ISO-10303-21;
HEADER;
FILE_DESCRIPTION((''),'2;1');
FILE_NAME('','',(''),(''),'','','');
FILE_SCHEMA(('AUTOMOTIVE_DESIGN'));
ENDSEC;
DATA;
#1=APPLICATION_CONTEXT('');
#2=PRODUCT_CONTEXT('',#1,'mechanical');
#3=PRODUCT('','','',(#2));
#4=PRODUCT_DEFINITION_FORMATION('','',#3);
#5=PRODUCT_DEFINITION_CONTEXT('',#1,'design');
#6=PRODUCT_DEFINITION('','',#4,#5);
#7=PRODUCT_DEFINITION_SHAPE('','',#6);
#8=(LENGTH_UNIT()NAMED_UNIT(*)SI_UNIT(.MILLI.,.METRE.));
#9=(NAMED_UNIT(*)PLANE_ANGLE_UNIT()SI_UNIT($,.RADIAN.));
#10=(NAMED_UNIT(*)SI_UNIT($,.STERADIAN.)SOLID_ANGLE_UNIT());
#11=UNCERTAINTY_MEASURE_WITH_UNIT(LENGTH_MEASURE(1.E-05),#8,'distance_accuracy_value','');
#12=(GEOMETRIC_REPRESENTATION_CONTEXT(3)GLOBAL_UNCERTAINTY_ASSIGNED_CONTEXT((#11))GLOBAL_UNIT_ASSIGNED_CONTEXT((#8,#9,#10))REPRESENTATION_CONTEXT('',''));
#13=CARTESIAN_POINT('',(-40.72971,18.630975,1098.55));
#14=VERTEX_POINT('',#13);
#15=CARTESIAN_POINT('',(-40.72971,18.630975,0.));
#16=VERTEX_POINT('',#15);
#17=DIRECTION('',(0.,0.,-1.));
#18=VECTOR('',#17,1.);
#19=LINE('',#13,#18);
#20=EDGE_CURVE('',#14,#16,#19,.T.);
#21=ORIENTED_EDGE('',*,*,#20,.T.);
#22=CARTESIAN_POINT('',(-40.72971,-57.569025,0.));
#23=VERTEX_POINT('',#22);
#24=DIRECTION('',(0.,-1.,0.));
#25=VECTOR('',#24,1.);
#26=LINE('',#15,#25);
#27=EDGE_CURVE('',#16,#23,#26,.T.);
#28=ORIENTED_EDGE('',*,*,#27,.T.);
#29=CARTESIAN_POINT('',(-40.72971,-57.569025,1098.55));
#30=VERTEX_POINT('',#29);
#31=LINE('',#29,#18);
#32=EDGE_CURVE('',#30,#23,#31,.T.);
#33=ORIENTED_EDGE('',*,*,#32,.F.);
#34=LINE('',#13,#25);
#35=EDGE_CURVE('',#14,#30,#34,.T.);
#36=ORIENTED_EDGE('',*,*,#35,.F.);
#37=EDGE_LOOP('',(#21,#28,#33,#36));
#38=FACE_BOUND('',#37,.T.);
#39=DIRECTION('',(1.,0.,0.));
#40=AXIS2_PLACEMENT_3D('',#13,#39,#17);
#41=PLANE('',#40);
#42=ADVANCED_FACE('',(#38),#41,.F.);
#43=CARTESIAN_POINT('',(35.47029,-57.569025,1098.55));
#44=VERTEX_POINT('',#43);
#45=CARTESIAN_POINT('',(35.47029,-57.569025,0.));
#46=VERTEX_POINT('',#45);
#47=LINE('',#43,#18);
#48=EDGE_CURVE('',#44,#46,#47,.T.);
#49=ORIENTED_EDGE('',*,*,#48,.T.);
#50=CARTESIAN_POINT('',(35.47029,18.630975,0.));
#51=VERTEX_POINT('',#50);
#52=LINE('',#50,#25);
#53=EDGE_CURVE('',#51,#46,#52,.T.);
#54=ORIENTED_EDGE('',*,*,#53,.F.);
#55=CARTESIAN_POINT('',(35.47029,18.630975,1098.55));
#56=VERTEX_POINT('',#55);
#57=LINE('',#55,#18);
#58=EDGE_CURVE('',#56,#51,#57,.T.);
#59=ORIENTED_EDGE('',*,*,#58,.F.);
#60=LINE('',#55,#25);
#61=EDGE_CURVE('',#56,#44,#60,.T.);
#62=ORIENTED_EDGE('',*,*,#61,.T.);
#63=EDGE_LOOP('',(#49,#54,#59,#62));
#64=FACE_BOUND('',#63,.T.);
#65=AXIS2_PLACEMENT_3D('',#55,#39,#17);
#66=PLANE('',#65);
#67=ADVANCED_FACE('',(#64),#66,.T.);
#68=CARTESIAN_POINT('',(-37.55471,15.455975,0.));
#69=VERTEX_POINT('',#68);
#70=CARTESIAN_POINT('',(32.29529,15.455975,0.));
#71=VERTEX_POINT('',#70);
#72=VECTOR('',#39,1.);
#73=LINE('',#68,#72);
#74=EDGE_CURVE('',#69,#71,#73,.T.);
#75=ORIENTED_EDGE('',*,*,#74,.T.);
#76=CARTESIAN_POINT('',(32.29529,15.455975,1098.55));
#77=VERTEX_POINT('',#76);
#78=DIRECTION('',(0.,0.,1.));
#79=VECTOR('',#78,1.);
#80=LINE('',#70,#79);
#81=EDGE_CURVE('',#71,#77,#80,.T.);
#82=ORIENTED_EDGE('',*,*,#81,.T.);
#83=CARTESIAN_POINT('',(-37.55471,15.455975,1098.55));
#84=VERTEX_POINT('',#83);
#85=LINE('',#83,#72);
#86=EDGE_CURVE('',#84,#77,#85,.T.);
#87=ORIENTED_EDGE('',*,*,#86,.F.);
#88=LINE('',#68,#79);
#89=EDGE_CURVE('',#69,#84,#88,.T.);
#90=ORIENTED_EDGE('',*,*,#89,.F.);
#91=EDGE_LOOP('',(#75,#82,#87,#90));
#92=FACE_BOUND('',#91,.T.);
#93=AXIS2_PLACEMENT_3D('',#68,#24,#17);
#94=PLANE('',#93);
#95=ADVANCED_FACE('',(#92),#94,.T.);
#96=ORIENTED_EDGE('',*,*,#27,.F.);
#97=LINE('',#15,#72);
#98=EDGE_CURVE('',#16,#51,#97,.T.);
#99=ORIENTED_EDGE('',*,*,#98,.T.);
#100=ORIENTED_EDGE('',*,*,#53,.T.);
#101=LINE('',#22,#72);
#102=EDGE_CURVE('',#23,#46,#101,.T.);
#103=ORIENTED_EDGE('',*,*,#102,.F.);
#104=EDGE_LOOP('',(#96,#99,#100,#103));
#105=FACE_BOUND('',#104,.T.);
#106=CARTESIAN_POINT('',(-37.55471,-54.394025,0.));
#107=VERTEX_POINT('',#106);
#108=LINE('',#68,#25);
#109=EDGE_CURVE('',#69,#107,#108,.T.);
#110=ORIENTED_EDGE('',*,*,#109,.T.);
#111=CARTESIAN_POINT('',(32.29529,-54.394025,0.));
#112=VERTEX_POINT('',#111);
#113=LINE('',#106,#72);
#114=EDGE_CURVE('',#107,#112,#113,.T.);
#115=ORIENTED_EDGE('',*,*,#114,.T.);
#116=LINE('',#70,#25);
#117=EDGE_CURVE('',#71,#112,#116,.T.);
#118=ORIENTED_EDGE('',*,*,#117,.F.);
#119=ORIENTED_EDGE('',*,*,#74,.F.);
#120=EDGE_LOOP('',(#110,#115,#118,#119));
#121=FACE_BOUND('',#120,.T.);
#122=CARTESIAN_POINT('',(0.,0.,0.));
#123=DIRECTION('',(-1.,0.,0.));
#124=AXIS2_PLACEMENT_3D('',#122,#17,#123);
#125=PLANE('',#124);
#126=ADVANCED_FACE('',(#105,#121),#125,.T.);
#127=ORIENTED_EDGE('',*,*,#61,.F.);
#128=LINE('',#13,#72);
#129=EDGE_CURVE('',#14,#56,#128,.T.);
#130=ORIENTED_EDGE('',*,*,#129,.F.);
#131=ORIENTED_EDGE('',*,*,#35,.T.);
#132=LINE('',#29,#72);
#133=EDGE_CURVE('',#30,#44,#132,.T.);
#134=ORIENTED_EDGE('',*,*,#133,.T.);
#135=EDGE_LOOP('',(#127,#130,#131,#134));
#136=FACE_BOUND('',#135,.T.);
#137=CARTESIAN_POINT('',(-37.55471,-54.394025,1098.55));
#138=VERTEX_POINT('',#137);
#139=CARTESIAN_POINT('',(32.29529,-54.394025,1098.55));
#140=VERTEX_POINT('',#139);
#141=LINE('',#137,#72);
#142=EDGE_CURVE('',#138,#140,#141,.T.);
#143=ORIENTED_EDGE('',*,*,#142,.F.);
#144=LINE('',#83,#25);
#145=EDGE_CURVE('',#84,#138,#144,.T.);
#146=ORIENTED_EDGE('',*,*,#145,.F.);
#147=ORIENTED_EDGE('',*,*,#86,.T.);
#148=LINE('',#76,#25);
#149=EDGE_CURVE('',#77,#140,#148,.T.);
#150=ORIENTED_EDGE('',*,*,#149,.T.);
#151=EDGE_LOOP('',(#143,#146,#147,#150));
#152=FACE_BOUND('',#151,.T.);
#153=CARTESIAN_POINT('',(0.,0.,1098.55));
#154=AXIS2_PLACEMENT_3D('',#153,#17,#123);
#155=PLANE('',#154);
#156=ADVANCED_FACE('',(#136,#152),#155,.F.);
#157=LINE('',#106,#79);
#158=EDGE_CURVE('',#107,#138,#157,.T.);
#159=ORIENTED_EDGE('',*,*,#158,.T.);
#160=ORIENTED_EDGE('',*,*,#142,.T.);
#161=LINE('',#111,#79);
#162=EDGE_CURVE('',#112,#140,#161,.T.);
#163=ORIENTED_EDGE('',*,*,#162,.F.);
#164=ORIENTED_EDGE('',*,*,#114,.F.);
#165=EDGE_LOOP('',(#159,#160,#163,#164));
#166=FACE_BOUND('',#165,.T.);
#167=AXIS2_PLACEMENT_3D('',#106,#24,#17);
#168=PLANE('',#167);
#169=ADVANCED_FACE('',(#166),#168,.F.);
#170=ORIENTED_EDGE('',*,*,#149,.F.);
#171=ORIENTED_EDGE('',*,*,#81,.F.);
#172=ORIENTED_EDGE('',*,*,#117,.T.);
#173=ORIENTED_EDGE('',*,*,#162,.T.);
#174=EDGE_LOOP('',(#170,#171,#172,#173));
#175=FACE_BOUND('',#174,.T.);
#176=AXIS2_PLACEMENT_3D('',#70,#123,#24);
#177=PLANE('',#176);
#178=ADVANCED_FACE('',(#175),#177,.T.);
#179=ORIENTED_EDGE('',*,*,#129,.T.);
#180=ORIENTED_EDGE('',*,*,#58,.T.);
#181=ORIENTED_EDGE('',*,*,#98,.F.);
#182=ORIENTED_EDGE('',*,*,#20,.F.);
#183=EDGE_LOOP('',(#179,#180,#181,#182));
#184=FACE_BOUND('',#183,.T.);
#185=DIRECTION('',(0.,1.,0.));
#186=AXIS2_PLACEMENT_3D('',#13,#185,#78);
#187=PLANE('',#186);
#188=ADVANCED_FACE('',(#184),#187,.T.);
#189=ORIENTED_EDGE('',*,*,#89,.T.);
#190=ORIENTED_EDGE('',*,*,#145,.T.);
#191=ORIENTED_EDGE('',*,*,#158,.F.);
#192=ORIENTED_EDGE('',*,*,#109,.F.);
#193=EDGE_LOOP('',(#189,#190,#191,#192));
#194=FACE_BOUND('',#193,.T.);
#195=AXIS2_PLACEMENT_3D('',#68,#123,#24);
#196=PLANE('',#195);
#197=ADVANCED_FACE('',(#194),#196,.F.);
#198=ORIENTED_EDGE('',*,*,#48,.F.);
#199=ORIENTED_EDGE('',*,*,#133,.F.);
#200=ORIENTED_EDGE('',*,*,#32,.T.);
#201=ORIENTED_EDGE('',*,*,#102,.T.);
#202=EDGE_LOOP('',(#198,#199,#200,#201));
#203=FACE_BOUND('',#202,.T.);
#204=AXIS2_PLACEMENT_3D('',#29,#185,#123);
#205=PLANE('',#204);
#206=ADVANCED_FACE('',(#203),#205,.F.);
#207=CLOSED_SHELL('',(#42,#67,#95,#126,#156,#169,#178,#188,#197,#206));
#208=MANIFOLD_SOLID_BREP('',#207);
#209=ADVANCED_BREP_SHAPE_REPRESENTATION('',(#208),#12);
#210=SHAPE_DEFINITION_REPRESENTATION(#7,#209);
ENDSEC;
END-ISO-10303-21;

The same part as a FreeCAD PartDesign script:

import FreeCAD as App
import Part
import Sketcher

V = App.Vector
Q = App.Units.Quantity

doc = App.newDocument("Part")
body = doc.addObject("PartDesign::Body", "Body")

sketch1 = body.newObject("Sketcher::SketchObject", "Sketch")
sketch1.AttachmentSupport = (doc.getObject("XY_Plane"), [""])
sketch1.MapMode = "FlatFace"
sketch1.addGeometry(Part.LineSegment(V(-41, 19, 0), V(-41, -58, 0)), False)
sketch1.addGeometry(Part.LineSegment(V(-41, -58, 0), V(35, -58, 0)), False)
sketch1.addGeometry(Part.LineSegment(V(35, -58, 0), V(35, 19, 0)), False)
sketch1.addGeometry(Part.LineSegment(V(35, 19, 0), V(-41, 19, 0)), False)
sketch1.addConstraint(Sketcher.Constraint("Coincident", 0, 2, 1, 1))
sketch1.addConstraint(Sketcher.Constraint("Coincident", 1, 2, 2, 1))
sketch1.addConstraint(Sketcher.Constraint("Coincident", 2, 2, 3, 1))
sketch1.addConstraint(Sketcher.Constraint("Coincident", 3, 2, 0, 1))
sketch1.addConstraint(Sketcher.Constraint("Vertical", 0))
sketch1.addConstraint(Sketcher.Constraint("Horizontal", 1))
sketch1.addConstraint(Sketcher.Constraint("Vertical", 2))
sketch1.addConstraint(Sketcher.Constraint("Horizontal", 3))
sketch1.addConstraint(Sketcher.Constraint("Equal", 3, 0))
sketch1.addConstraint(Sketcher.Constraint("DistanceX", 1, 1, 1, 2, Q("3 in")))
sketch1.addConstraint(Sketcher.Constraint("DistanceX", 0, 2, -1, 1, Q("40.72971 mm")))
sketch1.addConstraint(Sketcher.Constraint("DistanceY", 0, 2, -1, 1, Q("57.569025 mm")))
pad1 = body.newObject("PartDesign::Pad", "Pad")
pad1.Profile = sketch1
pad1.Length = Q("43.25 in")

sketch2 = body.newObject("Sketcher::SketchObject", "Sketch001")
sketch2.AttachmentSupport = (doc.getObject("XY_Plane"), [""])
sketch2.MapMode = "FlatFace"
sketch2.AttachmentOffset = App.Placement(V(0, 0, 43.25 * 25.4), App.Rotation())
sketch2.addGeometry(Part.LineSegment(V(-38, 15, 0), V(-38, -54, 0)), False)
sketch2.addGeometry(Part.LineSegment(V(-38, -54, 0), V(32, -54, 0)), False)
sketch2.addGeometry(Part.LineSegment(V(32, -54, 0), V(32, 15, 0)), False)
sketch2.addGeometry(Part.LineSegment(V(32, 15, 0), V(-38, 15, 0)), False)
sketch2.addConstraint(Sketcher.Constraint("Coincident", 0, 2, 1, 1))
sketch2.addConstraint(Sketcher.Constraint("Coincident", 1, 2, 2, 1))
sketch2.addConstraint(Sketcher.Constraint("Coincident", 2, 2, 3, 1))
sketch2.addConstraint(Sketcher.Constraint("Coincident", 3, 2, 0, 1))
sketch2.addConstraint(Sketcher.Constraint("Vertical", 0))
sketch2.addConstraint(Sketcher.Constraint("Horizontal", 1))
sketch2.addConstraint(Sketcher.Constraint("Vertical", 2))
sketch2.addConstraint(Sketcher.Constraint("Horizontal", 3))
sketch2.addConstraint(Sketcher.Constraint("Equal", 3, 0))
sketch2.addConstraint(Sketcher.Constraint("DistanceX", 1, 1, 1, 2, Q("2.75 in")))
sketch2.addConstraint(Sketcher.Constraint("DistanceX", 0, 2, -1, 1, Q("37.55471 mm")))
sketch2.addConstraint(Sketcher.Constraint("DistanceY", 0, 2, -1, 1, Q("54.394025 mm")))
pocket1 = body.newObject("PartDesign::Pocket", "Pocket")
pocket1.Profile = sketch2
pocket1.Length = Q("43.25 in")

doc.recompute()
